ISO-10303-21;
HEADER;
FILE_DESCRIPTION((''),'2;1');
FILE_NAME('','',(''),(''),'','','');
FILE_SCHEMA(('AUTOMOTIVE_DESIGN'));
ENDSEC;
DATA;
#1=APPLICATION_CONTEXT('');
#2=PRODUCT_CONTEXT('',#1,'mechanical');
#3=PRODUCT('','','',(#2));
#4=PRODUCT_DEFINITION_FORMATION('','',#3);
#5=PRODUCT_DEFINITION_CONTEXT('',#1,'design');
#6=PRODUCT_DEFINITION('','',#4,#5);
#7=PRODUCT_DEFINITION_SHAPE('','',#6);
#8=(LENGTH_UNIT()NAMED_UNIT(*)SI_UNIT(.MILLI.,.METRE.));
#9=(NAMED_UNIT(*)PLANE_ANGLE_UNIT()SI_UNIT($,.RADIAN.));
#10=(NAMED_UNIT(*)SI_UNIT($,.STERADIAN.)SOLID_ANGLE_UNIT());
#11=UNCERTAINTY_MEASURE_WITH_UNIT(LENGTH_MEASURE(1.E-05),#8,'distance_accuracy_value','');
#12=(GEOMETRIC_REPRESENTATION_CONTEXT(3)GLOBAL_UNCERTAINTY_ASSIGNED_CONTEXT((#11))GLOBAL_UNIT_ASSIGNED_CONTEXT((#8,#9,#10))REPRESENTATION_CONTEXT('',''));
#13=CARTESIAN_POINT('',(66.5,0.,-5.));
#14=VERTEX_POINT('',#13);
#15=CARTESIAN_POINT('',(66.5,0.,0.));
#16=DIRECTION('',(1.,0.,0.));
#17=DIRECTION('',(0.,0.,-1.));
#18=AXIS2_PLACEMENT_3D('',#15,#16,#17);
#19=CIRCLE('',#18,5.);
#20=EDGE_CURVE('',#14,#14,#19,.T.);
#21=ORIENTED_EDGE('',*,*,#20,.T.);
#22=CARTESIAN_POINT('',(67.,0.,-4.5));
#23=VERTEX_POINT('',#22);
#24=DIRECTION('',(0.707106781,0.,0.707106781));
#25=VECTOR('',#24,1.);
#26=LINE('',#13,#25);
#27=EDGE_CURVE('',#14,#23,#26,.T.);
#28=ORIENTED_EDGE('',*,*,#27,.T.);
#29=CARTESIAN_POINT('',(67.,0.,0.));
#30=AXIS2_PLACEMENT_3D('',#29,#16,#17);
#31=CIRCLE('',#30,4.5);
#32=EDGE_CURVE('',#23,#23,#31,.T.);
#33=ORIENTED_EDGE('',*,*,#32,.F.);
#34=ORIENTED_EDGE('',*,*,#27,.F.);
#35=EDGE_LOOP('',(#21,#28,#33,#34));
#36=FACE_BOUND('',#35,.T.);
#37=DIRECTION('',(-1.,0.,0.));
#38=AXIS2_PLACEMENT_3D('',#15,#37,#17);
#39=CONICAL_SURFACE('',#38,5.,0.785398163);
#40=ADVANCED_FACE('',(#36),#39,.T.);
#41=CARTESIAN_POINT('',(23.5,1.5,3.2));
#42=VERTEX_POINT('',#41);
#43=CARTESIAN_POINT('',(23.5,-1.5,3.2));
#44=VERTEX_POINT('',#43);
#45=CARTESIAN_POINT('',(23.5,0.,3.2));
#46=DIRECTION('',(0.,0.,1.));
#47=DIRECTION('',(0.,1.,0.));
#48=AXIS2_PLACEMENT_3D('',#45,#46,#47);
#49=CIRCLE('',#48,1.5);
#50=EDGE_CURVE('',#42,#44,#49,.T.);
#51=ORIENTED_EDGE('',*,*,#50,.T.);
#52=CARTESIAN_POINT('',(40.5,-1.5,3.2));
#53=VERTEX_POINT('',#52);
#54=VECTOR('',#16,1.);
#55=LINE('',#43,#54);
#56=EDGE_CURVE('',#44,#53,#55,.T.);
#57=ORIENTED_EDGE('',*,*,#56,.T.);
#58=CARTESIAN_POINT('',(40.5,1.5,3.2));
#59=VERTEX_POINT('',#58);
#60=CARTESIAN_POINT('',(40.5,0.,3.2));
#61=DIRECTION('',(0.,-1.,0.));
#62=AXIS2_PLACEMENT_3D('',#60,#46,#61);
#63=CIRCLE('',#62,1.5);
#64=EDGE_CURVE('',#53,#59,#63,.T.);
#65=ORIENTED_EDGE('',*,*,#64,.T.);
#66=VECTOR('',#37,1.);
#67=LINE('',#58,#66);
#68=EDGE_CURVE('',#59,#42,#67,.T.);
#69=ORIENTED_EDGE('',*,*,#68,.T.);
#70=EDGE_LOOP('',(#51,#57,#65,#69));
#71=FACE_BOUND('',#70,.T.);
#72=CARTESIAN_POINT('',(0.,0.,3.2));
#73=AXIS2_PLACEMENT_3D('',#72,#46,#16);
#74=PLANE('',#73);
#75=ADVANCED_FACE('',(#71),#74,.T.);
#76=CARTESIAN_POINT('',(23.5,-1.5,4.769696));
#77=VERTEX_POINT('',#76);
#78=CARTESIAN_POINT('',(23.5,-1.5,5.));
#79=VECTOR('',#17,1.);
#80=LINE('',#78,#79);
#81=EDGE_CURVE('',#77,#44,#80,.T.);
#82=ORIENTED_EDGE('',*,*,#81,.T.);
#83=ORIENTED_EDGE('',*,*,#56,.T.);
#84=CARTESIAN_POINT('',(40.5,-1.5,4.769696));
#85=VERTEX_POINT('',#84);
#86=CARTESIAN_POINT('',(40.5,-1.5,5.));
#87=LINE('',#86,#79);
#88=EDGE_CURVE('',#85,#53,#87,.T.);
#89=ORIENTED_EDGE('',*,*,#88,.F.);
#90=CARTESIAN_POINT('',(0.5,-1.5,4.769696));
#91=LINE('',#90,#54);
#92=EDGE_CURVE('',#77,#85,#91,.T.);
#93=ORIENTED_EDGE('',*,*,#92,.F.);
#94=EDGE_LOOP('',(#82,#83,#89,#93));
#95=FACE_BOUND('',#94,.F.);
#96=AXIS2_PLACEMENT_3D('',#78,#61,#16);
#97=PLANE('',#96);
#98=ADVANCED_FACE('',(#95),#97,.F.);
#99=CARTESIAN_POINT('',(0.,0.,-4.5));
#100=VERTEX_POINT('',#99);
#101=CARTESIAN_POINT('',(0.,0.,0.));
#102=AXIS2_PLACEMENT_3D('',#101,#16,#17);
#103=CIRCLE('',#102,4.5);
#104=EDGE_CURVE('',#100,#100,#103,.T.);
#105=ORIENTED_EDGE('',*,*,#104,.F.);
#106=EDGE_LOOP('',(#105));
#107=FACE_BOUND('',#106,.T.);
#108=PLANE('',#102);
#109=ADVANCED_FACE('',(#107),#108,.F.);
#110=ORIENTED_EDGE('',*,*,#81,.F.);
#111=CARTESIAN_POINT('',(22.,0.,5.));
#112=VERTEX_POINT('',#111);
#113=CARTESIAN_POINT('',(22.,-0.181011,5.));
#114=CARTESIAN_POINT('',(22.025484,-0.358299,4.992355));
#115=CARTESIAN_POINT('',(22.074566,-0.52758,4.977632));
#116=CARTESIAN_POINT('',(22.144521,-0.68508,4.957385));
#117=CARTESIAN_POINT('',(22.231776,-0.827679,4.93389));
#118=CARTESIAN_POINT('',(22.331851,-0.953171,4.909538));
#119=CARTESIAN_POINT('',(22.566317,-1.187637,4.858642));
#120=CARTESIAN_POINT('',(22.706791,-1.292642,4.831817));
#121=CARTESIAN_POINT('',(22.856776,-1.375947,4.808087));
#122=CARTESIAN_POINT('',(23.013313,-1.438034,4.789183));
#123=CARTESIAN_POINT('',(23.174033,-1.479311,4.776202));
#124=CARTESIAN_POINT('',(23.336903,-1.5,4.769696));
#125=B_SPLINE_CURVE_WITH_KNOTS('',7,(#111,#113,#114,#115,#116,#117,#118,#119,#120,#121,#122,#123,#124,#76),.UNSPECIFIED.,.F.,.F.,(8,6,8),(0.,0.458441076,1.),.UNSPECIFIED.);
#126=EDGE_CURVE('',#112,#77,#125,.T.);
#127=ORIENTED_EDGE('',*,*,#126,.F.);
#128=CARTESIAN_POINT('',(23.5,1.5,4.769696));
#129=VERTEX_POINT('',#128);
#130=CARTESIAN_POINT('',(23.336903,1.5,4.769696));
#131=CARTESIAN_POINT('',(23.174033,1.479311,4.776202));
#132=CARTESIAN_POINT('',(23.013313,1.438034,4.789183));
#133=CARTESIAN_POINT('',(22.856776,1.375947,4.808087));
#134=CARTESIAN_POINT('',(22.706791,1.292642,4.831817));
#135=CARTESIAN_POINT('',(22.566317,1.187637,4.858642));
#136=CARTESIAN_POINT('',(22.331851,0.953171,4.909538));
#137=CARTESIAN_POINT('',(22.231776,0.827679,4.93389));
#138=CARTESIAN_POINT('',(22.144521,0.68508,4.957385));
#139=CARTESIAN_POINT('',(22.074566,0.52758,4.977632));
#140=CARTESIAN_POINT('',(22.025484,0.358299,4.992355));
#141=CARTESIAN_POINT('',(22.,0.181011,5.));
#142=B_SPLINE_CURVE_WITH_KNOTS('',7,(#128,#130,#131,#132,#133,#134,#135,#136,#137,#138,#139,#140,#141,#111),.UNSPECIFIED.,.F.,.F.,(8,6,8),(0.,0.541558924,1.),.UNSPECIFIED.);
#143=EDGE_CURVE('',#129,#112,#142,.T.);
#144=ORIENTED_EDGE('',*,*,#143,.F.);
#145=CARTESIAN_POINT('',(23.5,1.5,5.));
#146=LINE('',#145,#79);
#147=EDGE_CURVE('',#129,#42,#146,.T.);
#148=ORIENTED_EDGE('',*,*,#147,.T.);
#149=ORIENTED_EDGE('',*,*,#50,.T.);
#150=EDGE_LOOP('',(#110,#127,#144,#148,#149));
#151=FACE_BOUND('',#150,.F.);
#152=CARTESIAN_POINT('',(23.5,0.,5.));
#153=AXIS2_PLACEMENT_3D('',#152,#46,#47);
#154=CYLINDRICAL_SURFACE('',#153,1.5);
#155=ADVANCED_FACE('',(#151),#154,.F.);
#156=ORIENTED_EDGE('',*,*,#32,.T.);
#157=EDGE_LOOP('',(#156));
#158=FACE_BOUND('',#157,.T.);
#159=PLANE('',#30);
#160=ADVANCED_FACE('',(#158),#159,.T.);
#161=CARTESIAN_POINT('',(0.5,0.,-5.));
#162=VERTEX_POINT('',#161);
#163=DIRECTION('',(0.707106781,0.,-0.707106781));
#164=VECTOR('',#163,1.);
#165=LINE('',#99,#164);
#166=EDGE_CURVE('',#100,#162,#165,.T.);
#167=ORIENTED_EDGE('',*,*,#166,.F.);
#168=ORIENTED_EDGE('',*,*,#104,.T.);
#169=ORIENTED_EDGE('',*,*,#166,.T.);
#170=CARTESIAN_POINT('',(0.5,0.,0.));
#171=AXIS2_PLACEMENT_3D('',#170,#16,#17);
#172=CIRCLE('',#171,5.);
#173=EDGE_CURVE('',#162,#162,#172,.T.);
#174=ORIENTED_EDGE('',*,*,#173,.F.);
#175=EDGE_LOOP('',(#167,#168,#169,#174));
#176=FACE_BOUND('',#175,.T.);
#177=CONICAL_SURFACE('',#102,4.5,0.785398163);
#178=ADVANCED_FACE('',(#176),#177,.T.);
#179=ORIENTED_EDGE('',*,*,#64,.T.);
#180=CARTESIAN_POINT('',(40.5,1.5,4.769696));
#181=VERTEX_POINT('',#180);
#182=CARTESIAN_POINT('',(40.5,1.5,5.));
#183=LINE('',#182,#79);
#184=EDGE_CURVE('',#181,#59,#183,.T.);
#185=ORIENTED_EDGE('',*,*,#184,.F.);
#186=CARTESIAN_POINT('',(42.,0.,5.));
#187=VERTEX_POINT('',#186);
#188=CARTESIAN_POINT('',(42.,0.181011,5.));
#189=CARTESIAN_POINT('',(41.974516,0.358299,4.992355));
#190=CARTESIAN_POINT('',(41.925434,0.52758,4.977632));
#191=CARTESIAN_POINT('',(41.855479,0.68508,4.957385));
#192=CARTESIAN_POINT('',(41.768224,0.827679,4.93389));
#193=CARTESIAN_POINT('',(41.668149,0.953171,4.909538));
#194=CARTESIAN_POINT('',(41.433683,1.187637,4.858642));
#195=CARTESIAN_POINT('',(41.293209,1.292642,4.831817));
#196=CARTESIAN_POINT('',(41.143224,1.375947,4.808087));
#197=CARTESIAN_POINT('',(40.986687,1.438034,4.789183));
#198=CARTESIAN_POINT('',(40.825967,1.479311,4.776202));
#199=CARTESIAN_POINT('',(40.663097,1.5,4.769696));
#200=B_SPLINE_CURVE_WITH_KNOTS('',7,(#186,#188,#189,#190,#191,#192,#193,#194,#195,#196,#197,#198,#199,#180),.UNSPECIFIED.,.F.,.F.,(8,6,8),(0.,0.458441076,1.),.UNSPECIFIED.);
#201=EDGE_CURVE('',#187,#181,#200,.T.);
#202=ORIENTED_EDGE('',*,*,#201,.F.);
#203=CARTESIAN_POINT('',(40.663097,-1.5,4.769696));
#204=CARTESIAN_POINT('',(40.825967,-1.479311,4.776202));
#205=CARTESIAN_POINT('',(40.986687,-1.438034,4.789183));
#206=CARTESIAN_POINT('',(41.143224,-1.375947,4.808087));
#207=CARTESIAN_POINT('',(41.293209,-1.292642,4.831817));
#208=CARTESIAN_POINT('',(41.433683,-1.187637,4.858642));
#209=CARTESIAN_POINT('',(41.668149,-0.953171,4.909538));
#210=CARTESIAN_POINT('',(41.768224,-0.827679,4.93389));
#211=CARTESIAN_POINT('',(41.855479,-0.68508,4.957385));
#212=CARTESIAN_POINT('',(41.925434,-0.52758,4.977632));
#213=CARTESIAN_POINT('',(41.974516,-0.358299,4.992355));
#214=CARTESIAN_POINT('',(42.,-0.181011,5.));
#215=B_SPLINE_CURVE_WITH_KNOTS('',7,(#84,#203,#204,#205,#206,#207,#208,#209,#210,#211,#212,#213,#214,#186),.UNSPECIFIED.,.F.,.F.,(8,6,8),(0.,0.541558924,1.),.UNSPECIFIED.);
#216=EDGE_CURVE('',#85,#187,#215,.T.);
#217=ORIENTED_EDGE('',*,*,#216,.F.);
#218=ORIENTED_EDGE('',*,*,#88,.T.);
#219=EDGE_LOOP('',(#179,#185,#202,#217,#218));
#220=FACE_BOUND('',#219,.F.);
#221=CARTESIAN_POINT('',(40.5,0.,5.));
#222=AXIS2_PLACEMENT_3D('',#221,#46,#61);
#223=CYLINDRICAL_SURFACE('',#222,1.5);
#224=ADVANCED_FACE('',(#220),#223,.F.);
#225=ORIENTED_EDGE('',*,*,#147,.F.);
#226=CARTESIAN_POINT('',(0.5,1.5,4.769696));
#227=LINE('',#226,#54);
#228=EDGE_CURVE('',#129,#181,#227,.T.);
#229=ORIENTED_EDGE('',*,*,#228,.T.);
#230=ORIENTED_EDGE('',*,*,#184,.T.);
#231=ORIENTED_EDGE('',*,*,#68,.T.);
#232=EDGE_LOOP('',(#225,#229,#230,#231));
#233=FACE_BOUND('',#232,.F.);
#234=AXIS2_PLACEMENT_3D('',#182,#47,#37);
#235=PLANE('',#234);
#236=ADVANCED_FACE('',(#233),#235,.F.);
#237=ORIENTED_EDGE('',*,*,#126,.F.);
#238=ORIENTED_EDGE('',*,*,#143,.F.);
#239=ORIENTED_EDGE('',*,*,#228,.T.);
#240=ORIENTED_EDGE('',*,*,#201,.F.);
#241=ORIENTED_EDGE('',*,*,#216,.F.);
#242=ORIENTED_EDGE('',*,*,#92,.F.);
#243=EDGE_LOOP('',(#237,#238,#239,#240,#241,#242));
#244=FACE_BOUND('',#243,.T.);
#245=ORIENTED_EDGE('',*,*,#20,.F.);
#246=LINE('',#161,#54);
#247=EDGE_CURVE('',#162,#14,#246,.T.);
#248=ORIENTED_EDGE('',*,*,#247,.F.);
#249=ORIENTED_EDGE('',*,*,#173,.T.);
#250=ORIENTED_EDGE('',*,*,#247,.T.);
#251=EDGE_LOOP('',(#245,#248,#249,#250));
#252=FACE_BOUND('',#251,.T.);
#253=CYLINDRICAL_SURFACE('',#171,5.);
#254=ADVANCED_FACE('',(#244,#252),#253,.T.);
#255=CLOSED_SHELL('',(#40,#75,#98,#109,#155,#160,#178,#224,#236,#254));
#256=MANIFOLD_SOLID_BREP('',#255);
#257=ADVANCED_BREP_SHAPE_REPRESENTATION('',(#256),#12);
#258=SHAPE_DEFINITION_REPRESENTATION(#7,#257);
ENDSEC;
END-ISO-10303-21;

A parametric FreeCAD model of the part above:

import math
import FreeCAD as App
import Part
import Sketcher
from FreeCAD import Vector


def add_polygon(sketch, points):
    """Adds a closed chain of lines whose ends are joined by coincident constraints."""
    first, n = sketch.GeometryCount, len(points)
    for a, b in zip(points, points[1:] + points[:1]):
        sketch.addGeometry(Part.LineSegment(App.Vector(*a, 0), App.Vector(*b, 0)), False)
    for i in range(n):
        sketch.addConstraint(Sketcher.Constraint("Coincident", first + i, 2, first + (i + 1) % n, 1))

doc = App.newDocument("Part")
body = doc.addObject("PartDesign::Body", "Body")

# Sketch on XZ plane
sketch1 = body.newObject("Sketcher::SketchObject", "Sketch")
sketch1.AttachmentSupport = (doc.getObject("XZ_Plane"), [""])
sketch1.MapMode = "FlatFace"
add_polygon(sketch1, [(0, 0), (67, 0), (67, -4.5), (66.5, -5), (0.5, -5), (0, -4.5)])  # lines 0-5
sketch1.addConstraint([
    Sketcher.Constraint("Horizontal", 0),
    Sketcher.Constraint("Vertical", 1),
    Sketcher.Constraint("Horizontal", 3),
    Sketcher.Constraint("Vertical", 5),
    Sketcher.Constraint("Coincident", 5, 2, -1, 1),
    Sketcher.Constraint("Perpendicular", 2, 4),
    Sketcher.Constraint("Horizontal", 1, 2, 4, 2),
    Sketcher.Constraint("Equal", 2, 4),
    Sketcher.Constraint("DistanceX", 0, 1, 0, 2, 67.0),
    Sketcher.Constraint("DistanceX", 3, 2, 3, 1, 66.0),
    Sketcher.Constraint("DistanceY", 1, 2, 1, 1, 4.5),
])
revolution = body.newObject("PartDesign::Revolution", "Revolution")
revolution.Profile = sketch1
revolution.ReferenceAxis = (sketch1, ["H_Axis"])
revolution.Angle = 360

# Sketch on XY plane
sketch2 = body.newObject("Sketcher::SketchObject", "Sketch001")
sketch2.AttachmentSupport = (doc.getObject("XY_Plane"), [""])
sketch2.MapMode = "FlatFace"
sketch2.AttachmentOffset = App.Placement(Vector(0, 0, 5), App.Rotation())
sketch2.addGeometry([
    Part.LineSegment(Vector(40.5, 1.5, 0), Vector(23.5, 1.5, 0)),
    Part.ArcOfCircle(Part.Circle(Vector(23.5, 0, 0), Vector(0, 0, 1), 1.5), math.radians(90), math.radians(270)),
    Part.LineSegment(Vector(23.5, -1.5, 0), Vector(40.5, -1.5, 0)),
    Part.ArcOfCircle(Part.Circle(Vector(40.5, 0, 0), Vector(0, 0, 1), 1.5), math.radians(-90), math.radians(90)),
], False)
sketch2.addConstraint([
    Sketcher.Constraint("Tangent", 0, 2, 1, 1),
    Sketcher.Constraint("Tangent", 1, 2, 2, 1),
    Sketcher.Constraint("Tangent", 2, 2, 3, 1),
    Sketcher.Constraint("Tangent", 3, 2, 0, 1),
    Sketcher.Constraint("Horizontal", 0),
    Sketcher.Constraint("Horizontal", 2),
    Sketcher.Constraint("PointOnObject", 1, 3, -1),
    Sketcher.Constraint("Radius", 1, 1.5),
    Sketcher.Constraint("DistanceX", 0, 2, 0, 1, 17.0),
    Sketcher.Constraint("DistanceX", -1, 1, 1, 3, 23.5),
])
pocket1 = body.newObject("PartDesign::Pocket", "Pocket")
pocket1.Profile = sketch2
pocket1.Length = 1.8

doc.recompute()
